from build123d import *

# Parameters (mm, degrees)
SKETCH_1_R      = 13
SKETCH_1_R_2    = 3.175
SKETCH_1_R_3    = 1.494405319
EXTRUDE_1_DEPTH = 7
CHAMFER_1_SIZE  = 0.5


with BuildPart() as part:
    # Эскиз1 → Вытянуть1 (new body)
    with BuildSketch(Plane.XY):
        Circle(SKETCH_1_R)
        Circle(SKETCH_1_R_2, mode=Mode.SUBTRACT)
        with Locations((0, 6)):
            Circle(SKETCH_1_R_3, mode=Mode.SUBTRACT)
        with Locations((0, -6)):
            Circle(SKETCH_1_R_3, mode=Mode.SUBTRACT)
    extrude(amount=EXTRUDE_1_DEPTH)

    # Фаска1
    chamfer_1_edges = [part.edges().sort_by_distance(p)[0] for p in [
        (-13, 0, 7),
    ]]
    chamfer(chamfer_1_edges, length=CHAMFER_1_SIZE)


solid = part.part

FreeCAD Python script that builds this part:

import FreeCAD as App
import Part
import Sketcher

V = App.Vector
Q = App.Units.Quantity


def edges_at(feature, points):
    """Names of the edges that pass closest to the given points."""
    edges = feature.Shape.Edges
    near = lambda p: min(range(len(edges)), key=lambda i: edges[i].distToShape(Part.Vertex(*p))[0])
    return sorted({f"Edge{near(p) + 1}" for p in points})

doc = App.newDocument("Part")
body = doc.addObject("PartDesign::Body", "Body")

sketch1 = doc.addObject("Sketcher::SketchObject", "Sketch")
body.addObject(sketch1)
sketch1.AttachmentSupport = (doc.XY_Plane, [""])
sketch1.MapMode = "FlatFace"
sketch1.addGeometry([
    Part.Circle(V(0, 0, 0), V(0, 0, 1), 13),
    Part.Circle(V(0, -6, 0), V(0, 0, 1), 1.5),
    Part.Circle(V(0, 0, 0), V(0, 0, 1), 3.2),
    Part.Circle(V(0, 6, 0), V(0, 0, 1), 1.5),
], False)
sketch1.addConstraint([
    Sketcher.Constraint("Coincident", 0, 3, -1, 1),
    Sketcher.Constraint("Coincident", 2, 3, -1, 1),
    Sketcher.Constraint("Equal", 1, 3),
    Sketcher.Constraint("Symmetric", 1, 3, 3, 3, -1, 1),
    Sketcher.Constraint("PointOnObject", 1, 3, -2),
    Sketcher.Constraint("Diameter", 0, Q("26 mm")),
    Sketcher.Constraint("Diameter", 2, Q("6.35 mm")),
    Sketcher.Constraint("DistanceY", 1, 3, -1, 1, Q("6 mm")),
    Sketcher.Constraint("Diameter", 1, Q("2.988811 mm")),
])
pad1 = doc.addObject("PartDesign::Pad", "Pad")
body.addObject(pad1)
pad1.Profile = sketch1
pad1.Length = 7
doc.recompute()

chamfer = doc.addObject("PartDesign::Chamfer", "Chamfer")
body.addObject(chamfer)
chamfer.Base = (pad1, edges_at(pad1, [(-13, 0, 7)]))
chamfer.Size = 0.5

doc.recompute()
